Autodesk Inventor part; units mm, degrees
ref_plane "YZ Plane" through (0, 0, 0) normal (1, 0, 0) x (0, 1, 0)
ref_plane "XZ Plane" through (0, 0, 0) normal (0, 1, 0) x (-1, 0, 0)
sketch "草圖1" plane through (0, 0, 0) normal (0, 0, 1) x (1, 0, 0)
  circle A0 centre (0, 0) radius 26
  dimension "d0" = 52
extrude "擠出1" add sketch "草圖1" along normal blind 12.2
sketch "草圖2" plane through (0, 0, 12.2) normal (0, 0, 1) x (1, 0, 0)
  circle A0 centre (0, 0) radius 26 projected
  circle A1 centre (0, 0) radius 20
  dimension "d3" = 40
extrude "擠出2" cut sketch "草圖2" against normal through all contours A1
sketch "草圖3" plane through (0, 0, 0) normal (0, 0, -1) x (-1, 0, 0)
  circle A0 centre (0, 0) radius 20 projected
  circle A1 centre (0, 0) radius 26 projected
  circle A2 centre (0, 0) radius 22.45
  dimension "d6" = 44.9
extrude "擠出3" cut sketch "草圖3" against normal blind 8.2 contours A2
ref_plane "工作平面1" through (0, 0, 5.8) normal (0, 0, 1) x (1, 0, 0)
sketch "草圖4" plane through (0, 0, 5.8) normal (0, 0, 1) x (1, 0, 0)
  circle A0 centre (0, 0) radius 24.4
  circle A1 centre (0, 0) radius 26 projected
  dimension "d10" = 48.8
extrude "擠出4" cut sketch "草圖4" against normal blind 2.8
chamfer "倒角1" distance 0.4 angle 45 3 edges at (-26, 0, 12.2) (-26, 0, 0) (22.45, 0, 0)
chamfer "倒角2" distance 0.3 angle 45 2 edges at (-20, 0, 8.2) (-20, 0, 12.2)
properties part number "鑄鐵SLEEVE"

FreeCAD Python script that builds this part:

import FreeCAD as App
import Part
import Sketcher
from FreeCAD import Vector


def edges_at(feature, points):
    """Names of the edges that pass closest to the given points."""
    edges = feature.Shape.Edges
    near = lambda p: min(range(len(edges)), key=lambda i: edges[i].distToShape(Part.Vertex(*p))[0])
    return sorted({f"Edge{near(p) + 1}" for p in points})

doc = App.newDocument("Part")
body = doc.addObject("PartDesign::Body", "Body")

# Sketch on XY plane
sketch1 = body.newObject("Sketcher::SketchObject", "Sketch")
sketch1.AttachmentSupport = (doc.getObject("XY_Plane"), [""])
sketch1.MapMode = "FlatFace"
sketch1.addGeometry(Part.Circle(Vector(0, 0, 0), Vector(0, 0, 1), 26), False)
sketch1.addConstraint([
    Sketcher.Constraint("Coincident", 0, 3, -1, 1),
    Sketcher.Constraint("Diameter", 0, 52.0),
])
pad1 = body.newObject("PartDesign::Pad", "Pad")
pad1.Profile = sketch1
pad1.Length = 12.2

# Sketch on XY plane
sketch2 = body.newObject("Sketcher::SketchObject", "Sketch001")
sketch2.AttachmentSupport = (doc.getObject("XY_Plane"), [""])
sketch2.MapMode = "FlatFace"
sketch2.AttachmentOffset = App.Placement(Vector(0, 0, 12.2), App.Rotation())
sketch2.addGeometry(Part.Circle(Vector(0, 0, 0), Vector(0, 0, 1), 20), False)
sketch2.addConstraint([
    Sketcher.Constraint("Coincident", 0, 3, -1, 1),
    Sketcher.Constraint("Diameter", 0, 40.0),
])
pocket1 = body.newObject("PartDesign::Pocket", "Pocket")
pocket1.Profile = sketch2
pocket1.Type = "ThroughAll"

# Sketch on XY plane
sketch3 = body.newObject("Sketcher::SketchObject", "Sketch002")
sketch3.AttachmentSupport = (doc.getObject("XY_Plane"), [""])
sketch3.MapMode = "FlatFace"
sketch3.addGeometry([
    Part.Circle(Vector(0, 0, 0), Vector(0, 0, 1), 22),
    Part.Circle(Vector(0, 0, 0), Vector(0, 0, 1), 20),
], False)
sketch3.addConstraint([
    Sketcher.Constraint("Coincident", 0, 3, -1, 1),
    Sketcher.Constraint("Coincident", 1, 3, -1, 1),
    Sketcher.Constraint("Diameter", 0, 44.9),
    Sketcher.Constraint("Diameter", 1, 40.0),
])
pocket2 = body.newObject("PartDesign::Pocket", "Pocket001")
pocket2.Profile = sketch3
pocket2.Length = 8.2
pocket2.Reversed = True

# Sketch on XY plane
sketch4 = body.newObject("Sketcher::SketchObject", "Sketch003")
sketch4.AttachmentSupport = (doc.getObject("XY_Plane"), [""])
sketch4.MapMode = "FlatFace"
sketch4.AttachmentOffset = App.Placement(Vector(0, 0, 5.8), App.Rotation())
sketch4.addGeometry([
    Part.Circle(Vector(0, 0, 0), Vector(0, 0, 1), 26),
    Part.Circle(Vector(0, 0, 0), Vector(0, 0, 1), 24),
], False)
sketch4.addConstraint([
    Sketcher.Constraint("Coincident", 0, 3, -1, 1),
    Sketcher.Constraint("Coincident", 1, 3, -1, 1),
    Sketcher.Constraint("Diameter", 1, 48.8),
    Sketcher.Constraint("Diameter", 0, 52.0),
])
pocket3 = body.newObject("PartDesign::Pocket", "Pocket002")
pocket3.Profile = sketch4
pocket3.Length = 2.8
doc.recompute()

chamfer = body.newObject("PartDesign::Chamfer", "Chamfer")
chamfer.Base = (pocket3, edges_at(pocket3, [(-26, 0, 12.2), (-26, 0, 0), (22.45, 0, 0)]))
chamfer.Size = 0.4
doc.recompute()

chamfer2 = body.newObject("PartDesign::Chamfer", "Chamfer001")
chamfer2.Base = (chamfer, edges_at(chamfer, [(-20, 0, 8.2), (-20, 0, 12.2)]))
chamfer2.Size = 0.3

doc.recompute()
